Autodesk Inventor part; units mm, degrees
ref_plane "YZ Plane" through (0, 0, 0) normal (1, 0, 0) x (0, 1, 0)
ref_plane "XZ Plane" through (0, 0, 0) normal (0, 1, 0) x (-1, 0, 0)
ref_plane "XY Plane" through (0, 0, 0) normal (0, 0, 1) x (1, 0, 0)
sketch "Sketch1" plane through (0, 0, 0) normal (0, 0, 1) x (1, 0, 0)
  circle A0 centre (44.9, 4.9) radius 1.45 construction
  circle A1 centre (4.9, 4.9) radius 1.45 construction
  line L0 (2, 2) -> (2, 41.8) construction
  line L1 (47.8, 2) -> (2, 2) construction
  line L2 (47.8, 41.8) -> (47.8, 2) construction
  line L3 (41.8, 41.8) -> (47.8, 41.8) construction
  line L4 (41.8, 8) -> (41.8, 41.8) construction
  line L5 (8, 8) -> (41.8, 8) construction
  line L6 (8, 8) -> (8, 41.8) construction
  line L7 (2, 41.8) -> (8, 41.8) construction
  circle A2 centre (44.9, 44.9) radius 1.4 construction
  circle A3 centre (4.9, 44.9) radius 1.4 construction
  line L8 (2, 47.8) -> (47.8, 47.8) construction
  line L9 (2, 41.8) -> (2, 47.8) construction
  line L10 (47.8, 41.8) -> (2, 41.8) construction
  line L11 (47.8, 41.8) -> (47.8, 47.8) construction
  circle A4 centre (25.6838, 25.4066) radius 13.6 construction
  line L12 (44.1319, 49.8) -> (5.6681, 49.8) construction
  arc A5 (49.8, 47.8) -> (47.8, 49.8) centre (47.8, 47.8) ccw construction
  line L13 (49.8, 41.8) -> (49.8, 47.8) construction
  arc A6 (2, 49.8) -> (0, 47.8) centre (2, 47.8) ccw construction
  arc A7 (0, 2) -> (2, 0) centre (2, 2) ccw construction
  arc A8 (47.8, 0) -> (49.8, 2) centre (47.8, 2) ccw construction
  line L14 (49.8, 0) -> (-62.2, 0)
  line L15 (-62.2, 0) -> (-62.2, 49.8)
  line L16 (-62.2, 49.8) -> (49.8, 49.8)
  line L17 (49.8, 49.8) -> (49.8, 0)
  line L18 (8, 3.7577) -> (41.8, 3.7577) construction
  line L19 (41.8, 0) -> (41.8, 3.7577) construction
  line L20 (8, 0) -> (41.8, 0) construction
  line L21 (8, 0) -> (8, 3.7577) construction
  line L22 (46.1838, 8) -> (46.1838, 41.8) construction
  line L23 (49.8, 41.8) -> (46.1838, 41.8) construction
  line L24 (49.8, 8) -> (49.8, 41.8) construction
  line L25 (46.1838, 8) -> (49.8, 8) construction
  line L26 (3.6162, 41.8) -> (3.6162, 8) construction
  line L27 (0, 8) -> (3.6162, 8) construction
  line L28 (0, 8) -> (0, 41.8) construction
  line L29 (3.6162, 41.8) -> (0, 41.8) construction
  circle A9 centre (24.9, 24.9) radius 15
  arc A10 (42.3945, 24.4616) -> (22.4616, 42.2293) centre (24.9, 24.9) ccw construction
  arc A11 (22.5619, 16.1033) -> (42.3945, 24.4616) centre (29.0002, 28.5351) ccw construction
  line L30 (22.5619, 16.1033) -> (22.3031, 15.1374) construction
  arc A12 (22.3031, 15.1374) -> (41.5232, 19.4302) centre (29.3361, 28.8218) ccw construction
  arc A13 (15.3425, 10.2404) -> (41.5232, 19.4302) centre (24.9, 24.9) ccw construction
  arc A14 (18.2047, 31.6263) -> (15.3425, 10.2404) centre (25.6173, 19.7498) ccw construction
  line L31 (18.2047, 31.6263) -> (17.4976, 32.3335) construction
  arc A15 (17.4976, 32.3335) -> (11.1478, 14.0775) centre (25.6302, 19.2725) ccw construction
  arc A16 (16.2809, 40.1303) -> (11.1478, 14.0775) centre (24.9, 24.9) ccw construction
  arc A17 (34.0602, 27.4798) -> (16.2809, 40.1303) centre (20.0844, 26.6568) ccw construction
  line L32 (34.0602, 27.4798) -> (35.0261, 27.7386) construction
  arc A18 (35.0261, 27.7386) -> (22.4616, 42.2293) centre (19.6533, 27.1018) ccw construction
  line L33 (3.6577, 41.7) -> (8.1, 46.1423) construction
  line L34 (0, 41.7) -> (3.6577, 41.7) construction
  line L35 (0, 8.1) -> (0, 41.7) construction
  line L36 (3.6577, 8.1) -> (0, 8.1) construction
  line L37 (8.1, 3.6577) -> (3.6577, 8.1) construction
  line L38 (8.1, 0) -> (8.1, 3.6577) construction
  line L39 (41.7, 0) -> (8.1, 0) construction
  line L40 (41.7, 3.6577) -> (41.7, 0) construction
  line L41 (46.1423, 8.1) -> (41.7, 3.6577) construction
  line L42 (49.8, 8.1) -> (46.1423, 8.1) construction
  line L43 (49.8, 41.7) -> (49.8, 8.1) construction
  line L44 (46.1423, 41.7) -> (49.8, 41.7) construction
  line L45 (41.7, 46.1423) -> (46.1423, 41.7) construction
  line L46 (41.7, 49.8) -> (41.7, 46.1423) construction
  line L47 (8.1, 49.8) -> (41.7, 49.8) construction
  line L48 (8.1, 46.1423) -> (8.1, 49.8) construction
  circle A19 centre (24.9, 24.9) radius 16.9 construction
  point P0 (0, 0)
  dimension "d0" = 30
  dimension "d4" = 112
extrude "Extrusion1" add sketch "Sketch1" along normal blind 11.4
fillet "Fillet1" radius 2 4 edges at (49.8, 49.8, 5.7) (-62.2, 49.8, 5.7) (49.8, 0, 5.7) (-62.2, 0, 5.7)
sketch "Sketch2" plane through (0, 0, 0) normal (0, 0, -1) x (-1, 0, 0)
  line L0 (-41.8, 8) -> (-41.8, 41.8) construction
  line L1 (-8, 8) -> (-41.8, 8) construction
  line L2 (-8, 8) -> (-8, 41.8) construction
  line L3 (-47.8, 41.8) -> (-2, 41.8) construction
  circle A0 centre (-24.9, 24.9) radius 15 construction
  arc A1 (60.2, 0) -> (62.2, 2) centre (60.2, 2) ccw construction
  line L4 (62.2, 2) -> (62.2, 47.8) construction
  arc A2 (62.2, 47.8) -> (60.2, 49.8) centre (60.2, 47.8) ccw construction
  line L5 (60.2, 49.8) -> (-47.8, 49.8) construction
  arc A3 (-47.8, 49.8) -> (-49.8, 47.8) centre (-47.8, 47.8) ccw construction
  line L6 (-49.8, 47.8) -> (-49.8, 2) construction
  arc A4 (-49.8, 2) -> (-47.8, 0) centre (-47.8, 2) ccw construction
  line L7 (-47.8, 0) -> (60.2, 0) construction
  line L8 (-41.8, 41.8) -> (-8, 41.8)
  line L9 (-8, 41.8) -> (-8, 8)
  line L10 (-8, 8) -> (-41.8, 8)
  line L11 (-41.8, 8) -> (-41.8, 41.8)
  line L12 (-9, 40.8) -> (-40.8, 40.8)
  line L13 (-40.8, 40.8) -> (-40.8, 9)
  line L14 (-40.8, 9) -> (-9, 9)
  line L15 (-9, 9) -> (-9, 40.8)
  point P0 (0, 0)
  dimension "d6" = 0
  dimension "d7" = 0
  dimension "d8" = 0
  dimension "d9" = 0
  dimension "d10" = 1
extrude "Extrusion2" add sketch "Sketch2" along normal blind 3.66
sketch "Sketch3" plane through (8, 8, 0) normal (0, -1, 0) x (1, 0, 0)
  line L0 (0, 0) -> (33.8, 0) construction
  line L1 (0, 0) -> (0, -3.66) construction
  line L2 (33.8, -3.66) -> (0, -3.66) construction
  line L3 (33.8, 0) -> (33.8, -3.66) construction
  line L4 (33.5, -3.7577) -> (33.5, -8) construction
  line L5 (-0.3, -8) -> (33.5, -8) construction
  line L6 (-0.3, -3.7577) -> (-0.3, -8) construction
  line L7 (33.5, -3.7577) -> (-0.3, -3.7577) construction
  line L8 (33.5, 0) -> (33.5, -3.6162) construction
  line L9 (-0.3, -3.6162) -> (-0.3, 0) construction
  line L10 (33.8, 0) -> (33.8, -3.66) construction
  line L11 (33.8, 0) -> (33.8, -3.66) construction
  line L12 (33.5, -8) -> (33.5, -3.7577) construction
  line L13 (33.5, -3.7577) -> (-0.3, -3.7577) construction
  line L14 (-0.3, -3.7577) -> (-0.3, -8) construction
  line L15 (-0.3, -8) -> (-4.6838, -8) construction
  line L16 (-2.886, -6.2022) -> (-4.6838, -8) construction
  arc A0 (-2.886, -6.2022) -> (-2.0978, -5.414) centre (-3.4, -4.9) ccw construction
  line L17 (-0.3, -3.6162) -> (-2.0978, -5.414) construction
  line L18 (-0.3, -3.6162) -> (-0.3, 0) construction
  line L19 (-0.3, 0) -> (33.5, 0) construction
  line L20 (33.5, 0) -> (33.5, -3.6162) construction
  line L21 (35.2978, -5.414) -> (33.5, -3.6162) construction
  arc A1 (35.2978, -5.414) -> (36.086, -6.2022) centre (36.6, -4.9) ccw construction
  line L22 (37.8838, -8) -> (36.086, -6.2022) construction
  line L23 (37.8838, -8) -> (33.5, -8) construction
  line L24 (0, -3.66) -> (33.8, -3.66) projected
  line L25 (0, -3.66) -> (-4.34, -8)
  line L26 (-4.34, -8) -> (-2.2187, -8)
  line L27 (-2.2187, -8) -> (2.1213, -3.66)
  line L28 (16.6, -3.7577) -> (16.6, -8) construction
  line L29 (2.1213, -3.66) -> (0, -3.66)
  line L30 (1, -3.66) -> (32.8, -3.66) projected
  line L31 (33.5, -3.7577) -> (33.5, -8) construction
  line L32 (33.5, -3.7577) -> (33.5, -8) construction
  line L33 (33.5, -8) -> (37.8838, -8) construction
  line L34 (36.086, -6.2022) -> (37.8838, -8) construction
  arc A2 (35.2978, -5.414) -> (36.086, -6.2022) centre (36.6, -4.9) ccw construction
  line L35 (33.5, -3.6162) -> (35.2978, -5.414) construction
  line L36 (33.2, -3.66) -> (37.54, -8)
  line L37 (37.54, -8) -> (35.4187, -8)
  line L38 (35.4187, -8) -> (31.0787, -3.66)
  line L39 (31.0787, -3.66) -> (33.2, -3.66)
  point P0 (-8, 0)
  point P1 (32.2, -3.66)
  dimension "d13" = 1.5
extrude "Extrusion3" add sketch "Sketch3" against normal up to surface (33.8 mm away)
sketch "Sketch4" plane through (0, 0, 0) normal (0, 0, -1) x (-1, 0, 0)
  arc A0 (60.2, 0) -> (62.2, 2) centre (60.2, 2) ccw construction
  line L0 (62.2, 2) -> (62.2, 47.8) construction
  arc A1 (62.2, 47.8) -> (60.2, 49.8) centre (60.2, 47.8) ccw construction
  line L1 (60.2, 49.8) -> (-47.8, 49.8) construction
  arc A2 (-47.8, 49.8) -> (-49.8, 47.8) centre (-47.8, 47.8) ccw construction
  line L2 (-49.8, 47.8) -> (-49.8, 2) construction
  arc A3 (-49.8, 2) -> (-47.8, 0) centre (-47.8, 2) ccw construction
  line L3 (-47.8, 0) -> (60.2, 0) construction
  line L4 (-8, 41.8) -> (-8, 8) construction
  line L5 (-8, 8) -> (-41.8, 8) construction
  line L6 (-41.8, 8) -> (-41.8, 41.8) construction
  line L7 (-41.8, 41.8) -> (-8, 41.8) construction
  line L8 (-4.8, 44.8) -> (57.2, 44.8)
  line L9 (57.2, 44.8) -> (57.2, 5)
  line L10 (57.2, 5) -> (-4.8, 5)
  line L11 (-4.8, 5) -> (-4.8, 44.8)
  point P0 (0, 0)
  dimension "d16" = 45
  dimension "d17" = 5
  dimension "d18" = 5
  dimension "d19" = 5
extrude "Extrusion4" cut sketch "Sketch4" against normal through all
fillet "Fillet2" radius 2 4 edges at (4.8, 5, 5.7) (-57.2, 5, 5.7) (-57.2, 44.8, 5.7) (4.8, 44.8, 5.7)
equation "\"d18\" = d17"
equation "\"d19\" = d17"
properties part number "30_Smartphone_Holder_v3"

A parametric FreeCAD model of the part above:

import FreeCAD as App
import Part
import Sketcher
from FreeCAD import Vector


def edges_at(feature, points):
    """Names of the edges that pass closest to the given points."""
    edges = feature.Shape.Edges
    near = lambda p: min(range(len(edges)), key=lambda i: edges[i].distToShape(Part.Vertex(*p))[0])
    return sorted({f"Edge{near(p) + 1}" for p in points})

doc = App.newDocument("Part")
body = doc.addObject("PartDesign::Body", "Body")

# Sketch on XY plane
sketch1 = body.newObject("Sketcher::SketchObject", "Sketch")
sketch1.AttachmentSupport = (doc.getObject("XY_Plane"), [""])
sketch1.MapMode = "FlatFace"
sketch1.addGeometry([
    Part.LineSegment(Vector(-62, 0, 0), Vector(50, 0, 0)),  # 0
    Part.LineSegment(Vector(50, 0, 0), Vector(50, 50, 0)),  # 1
    Part.LineSegment(Vector(50, 50, 0), Vector(-62, 50, 0)),  # 2
    Part.LineSegment(Vector(-62, 50, 0), Vector(-62, 0, 0)),  # 3
    Part.Circle(Vector(25, 25, 0), Vector(0, 0, 1), 15),  # 4
], False)
sketch1.addConstraint([
    Sketcher.Constraint("Coincident", 0, 2, 1, 1),
    Sketcher.Constraint("Coincident", 1, 2, 2, 1),
    Sketcher.Constraint("Coincident", 2, 2, 3, 1),
    Sketcher.Constraint("Coincident", 3, 2, 0, 1),
    Sketcher.Constraint("Horizontal", 0),
    Sketcher.Constraint("Vertical", 1),
    Sketcher.Constraint("Horizontal", 2),
    Sketcher.Constraint("Vertical", 3),
    Sketcher.Constraint("PointOnObject", 0, 2, -1),
    Sketcher.Constraint("Diameter", 4, 30.0),
    Sketcher.Constraint("DistanceX", 0, 1, 0, 2, 112.0),
    Sketcher.Constraint("DistanceY", 1, 1, 1, 2, 49.8),
    Sketcher.Constraint("DistanceX", -1, 1, 4, 3, 24.9),
    Sketcher.Constraint("DistanceY", -1, 1, 4, 3, 24.9),
    Sketcher.Constraint("DistanceX", -1, 1, 0, 2, 49.8),
])
pad1 = body.newObject("PartDesign::Pad", "Pad")
pad1.Profile = sketch1
pad1.Length = 11.4
doc.recompute()

fillet = body.newObject("PartDesign::Fillet", "Fillet")
fillet.Base = (pad1, edges_at(pad1, [
    (49.8, 49.8, 5.7),
    (-62.2, 49.8, 5.7),
    (49.8, 0, 5.7),
    (-62.2, 0, 5.7),
]))
fillet.Radius = 2

# Sketch on XY plane
sketch2 = body.newObject("Sketcher::SketchObject", "Sketch001")
sketch2.AttachmentSupport = (doc.getObject("XY_Plane"), [""])
sketch2.MapMode = "FlatFace"
sketch2.addGeometry([
    Part.LineSegment(Vector(8, 42, 0), Vector(42, 42, 0)),  # 0
    Part.LineSegment(Vector(42, 42, 0), Vector(42, 8, 0)),  # 1
    Part.LineSegment(Vector(42, 8, 0), Vector(8, 8, 0)),  # 2
    Part.LineSegment(Vector(8, 8, 0), Vector(8, 42, 0)),  # 3
    Part.LineSegment(Vector(41, 41, 0), Vector(9, 41, 0)),  # 4
    Part.LineSegment(Vector(9, 41, 0), Vector(9, 9, 0)),  # 5
    Part.LineSegment(Vector(9, 9, 0), Vector(41, 9, 0)),  # 6
    Part.LineSegment(Vector(41, 9, 0), Vector(41, 41, 0)),  # 7
], False)
sketch2.addConstraint([
    Sketcher.Constraint("Coincident", 0, 2, 1, 1),
    Sketcher.Constraint("Coincident", 1, 2, 2, 1),
    Sketcher.Constraint("Coincident", 2, 2, 3, 1),
    Sketcher.Constraint("Coincident", 3, 2, 0, 1),
    Sketcher.Constraint("Coincident", 4, 2, 5, 1),
    Sketcher.Constraint("Coincident", 5, 2, 6, 1),
    Sketcher.Constraint("Coincident", 6, 2, 7, 1),
    Sketcher.Constraint("Coincident", 7, 2, 4, 1),
    Sketcher.Constraint("Horizontal", 0),
    Sketcher.Constraint("Vertical", 1),
    Sketcher.Constraint("Horizontal", 2),
    Sketcher.Constraint("Vertical", 3),
    Sketcher.Constraint("Horizontal", 4),
    Sketcher.Constraint("Vertical", 5),
    Sketcher.Constraint("Horizontal", 6),
    Sketcher.Constraint("Vertical", 7),
    Sketcher.Constraint("Equal", 2, 1),
    Sketcher.Constraint("Equal", 6, 5),
    Sketcher.Constraint("DistanceX", 3, 2, 4, 2, 1.0),
    Sketcher.Constraint("DistanceY", 4, 2, 3, 2, 1.0),
    Sketcher.Constraint("DistanceY", 2, 2, 5, 2, 1.0),
    Sketcher.Constraint("DistanceX", 0, 1, 0, 2, 33.8),
    Sketcher.Constraint("DistanceY", -1, 1, 1, 2, 8.0),
    Sketcher.Constraint("DistanceX", -1, 1, 2, 2, 8.0),
])
pad2 = body.newObject("PartDesign::Pad", "Pad001")
pad2.Profile = sketch2
pad2.Length = 3.66
pad2.Reversed = True

# Sketch on XZ plane
sketch3 = body.newObject("Sketcher::SketchObject", "Sketch002")
sketch3.AttachmentSupport = (doc.getObject("XZ_Plane"), [""])
sketch3.MapMode = "FlatFace"
sketch3.AttachmentOffset = App.Placement(Vector(0, 0, -8), App.Rotation())
sketch3.addGeometry([
    Part.LineSegment(Vector(41.2, -3.7, 0), Vector(39.1, -3.7, 0)),  # 0
    Part.LineSegment(Vector(39.1, -3.7, 0), Vector(43.4, -8, 0)),  # 1
    Part.LineSegment(Vector(43.4, -8, 0), Vector(45.5, -8, 0)),  # 2
    Part.LineSegment(Vector(45.5, -8, 0), Vector(41.2, -3.7, 0)),  # 3
    Part.LineSegment(Vector(10.1, -3.7, 0), Vector(8, -3.7, 0)),  # 4
    Part.LineSegment(Vector(8, -3.7, 0), Vector(3.7, -8, 0)),  # 5
    Part.LineSegment(Vector(3.7, -8, 0), Vector(5.8, -8, 0)),  # 6
    Part.LineSegment(Vector(5.8, -8, 0), Vector(10.1, -3.7, 0)),  # 7
], False)
sketch3.addConstraint([
    Sketcher.Constraint("Coincident", 0, 2, 1, 1),
    Sketcher.Constraint("Coincident", 1, 2, 2, 1),
    Sketcher.Constraint("Coincident", 2, 2, 3, 1),
    Sketcher.Constraint("Coincident", 3, 2, 0, 1),
    Sketcher.Constraint("Coincident", 4, 2, 5, 1),
    Sketcher.Constraint("Coincident", 5, 2, 6, 1),
    Sketcher.Constraint("Coincident", 6, 2, 7, 1),
    Sketcher.Constraint("Coincident", 7, 2, 4, 1),
    Sketcher.Constraint("Horizontal", 0),
    Sketcher.Constraint("Horizontal", 2),
    Sketcher.Constraint("Horizontal", 4),
    Sketcher.Constraint("Horizontal", 6),
    Sketcher.Constraint("Parallel", 1, 3),
    Sketcher.Constraint("Perpendicular", 3, 5),
    Sketcher.Constraint("Parallel", 5, 7),
    Sketcher.Constraint("Horizontal", 3, 2, 4, 2),
    Sketcher.Constraint("Horizontal", 2, 2, 5, 2),
    Sketcher.Constraint("Equal", 2, 4),
    Sketcher.Constraint("Equal", 3, 5),
    Sketcher.Constraint("DistanceY", 1, 2, -1, 1, 8.0),
    Sketcher.Constraint("DistanceX", -1, 1, 4, 2, 8.0),
    Sketcher.Constraint("DistanceX", -1, 1, 3, 2, 41.2),
    Sketcher.Constraint("DistanceY", 0, 2, -1, 1, 3.66),
    Sketcher.Constraint("DistanceX", 0, 2, 0, 1, 2.1213),
])
pad3 = body.newObject("PartDesign::Pad", "Pad002")
pad3.Profile = sketch3
pad3.Length = 33.8
pad3.Reversed = True

# Sketch on XY plane
sketch4 = body.newObject("Sketcher::SketchObject", "Sketch003")
sketch4.AttachmentSupport = (doc.getObject("XY_Plane"), [""])
sketch4.MapMode = "FlatFace"
sketch4.addGeometry([
    Part.LineSegment(Vector(-57, 45, 0), Vector(5, 45, 0)),
    Part.LineSegment(Vector(5, 45, 0), Vector(5, 5, 0)),
    Part.LineSegment(Vector(5, 5, 0), Vector(-57, 5, 0)),
    Part.LineSegment(Vector(-57, 5, 0), Vector(-57, 45, 0)),
], False)
sketch4.addConstraint([
    Sketcher.Constraint("Coincident", 0, 2, 1, 1),
    Sketcher.Constraint("Coincident", 1, 2, 2, 1),
    Sketcher.Constraint("Coincident", 2, 2, 3, 1),
    Sketcher.Constraint("Coincident", 3, 2, 0, 1),
    Sketcher.Constraint("Horizontal", 0),
    Sketcher.Constraint("Vertical", 1),
    Sketcher.Constraint("Horizontal", 2),
    Sketcher.Constraint("Vertical", 3),
    Sketcher.Constraint("DistanceY", -1, 1, 1, 2, 5.0),
    Sketcher.Constraint("DistanceX", 0, 1, 0, 2, 62.0),
    Sketcher.Constraint("DistanceY", 1, 2, 1, 1, 39.8),
    Sketcher.Constraint("DistanceX", -1, 1, 0, 2, 4.8),
])
pocket1 = body.newObject("PartDesign::Pocket", "Pocket")
pocket1.Profile = sketch4
pocket1.Type = "ThroughAll"
pocket1.Reversed = True
doc.recompute()

fillet2 = body.newObject("PartDesign::Fillet", "Fillet001")
fillet2.Base = (pocket1, edges_at(pocket1, [
    (4.8, 5, 5.7),
    (-57.2, 5, 5.7),
    (-57.2, 44.8, 5.7),
    (4.8, 44.8, 5.7),
]))
fillet2.Radius = 2

doc.recompute()
